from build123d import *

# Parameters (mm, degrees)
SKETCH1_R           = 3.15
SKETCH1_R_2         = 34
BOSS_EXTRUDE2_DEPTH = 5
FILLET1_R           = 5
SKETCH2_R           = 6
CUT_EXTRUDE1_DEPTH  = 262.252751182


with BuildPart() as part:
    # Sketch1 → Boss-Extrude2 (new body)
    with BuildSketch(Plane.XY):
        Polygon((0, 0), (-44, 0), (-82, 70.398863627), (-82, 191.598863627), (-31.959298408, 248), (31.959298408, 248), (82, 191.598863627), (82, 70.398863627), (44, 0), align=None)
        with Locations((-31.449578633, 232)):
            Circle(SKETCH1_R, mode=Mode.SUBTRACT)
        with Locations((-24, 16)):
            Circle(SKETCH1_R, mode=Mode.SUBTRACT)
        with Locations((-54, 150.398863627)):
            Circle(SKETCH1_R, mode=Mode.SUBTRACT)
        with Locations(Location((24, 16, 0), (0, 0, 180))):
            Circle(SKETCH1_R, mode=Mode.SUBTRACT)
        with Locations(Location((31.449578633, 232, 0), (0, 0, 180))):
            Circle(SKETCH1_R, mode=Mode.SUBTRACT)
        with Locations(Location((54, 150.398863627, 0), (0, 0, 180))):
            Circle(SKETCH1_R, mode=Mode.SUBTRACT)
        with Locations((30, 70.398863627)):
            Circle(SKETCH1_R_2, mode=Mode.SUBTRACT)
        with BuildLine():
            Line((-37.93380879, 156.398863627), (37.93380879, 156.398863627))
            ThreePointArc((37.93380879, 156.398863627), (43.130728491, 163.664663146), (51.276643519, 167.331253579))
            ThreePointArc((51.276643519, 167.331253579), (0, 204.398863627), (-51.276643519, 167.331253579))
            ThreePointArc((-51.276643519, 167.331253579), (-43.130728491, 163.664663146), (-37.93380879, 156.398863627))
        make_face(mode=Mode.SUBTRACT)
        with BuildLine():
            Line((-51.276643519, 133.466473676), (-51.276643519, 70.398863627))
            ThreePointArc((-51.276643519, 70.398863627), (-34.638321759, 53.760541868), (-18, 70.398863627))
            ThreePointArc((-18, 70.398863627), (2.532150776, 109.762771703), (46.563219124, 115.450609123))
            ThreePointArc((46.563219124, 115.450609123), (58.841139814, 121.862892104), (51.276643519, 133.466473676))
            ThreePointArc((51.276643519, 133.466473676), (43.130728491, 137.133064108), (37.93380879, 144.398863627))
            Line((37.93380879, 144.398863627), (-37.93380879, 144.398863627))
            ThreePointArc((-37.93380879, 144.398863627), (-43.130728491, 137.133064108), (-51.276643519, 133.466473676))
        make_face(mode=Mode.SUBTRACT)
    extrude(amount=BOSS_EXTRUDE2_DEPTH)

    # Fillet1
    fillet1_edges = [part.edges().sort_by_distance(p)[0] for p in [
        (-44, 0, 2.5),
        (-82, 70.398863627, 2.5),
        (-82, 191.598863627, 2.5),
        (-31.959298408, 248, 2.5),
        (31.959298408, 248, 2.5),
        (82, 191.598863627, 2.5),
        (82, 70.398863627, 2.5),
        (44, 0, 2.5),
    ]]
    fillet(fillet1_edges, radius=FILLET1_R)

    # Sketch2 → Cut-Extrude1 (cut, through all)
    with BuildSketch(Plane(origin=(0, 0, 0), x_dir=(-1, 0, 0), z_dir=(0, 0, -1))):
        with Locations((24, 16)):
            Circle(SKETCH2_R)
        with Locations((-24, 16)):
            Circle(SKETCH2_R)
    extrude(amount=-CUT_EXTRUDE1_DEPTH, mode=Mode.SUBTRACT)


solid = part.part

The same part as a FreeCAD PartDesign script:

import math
import FreeCAD as App
import Part
import Sketcher

V = App.Vector
Q = App.Units.Quantity


def edges_at(feature, points):
    """Names of the edges that pass closest to the given points."""
    edges = feature.Shape.Edges
    near = lambda p: min(range(len(edges)), key=lambda i: edges[i].distToShape(Part.Vertex(*p))[0])
    return sorted({f"Edge{near(p) + 1}" for p in points})

doc = App.newDocument("Part")
params = doc.addObject("Spreadsheet::Sheet", "Params")
for row, (alias, value) in enumerate([
    ("sketch1_diameter", "68 mm"),
    ("sketch1_radius", "48 mm"),
    ("sketch1_radius2", "54 mm"),
    ("sketch1_diameter2", "6.3 mm"),
    ("sketch1_width", "88 mm"),
    ("pad1_length", "5 mm"),
    ("fillet_radius", "5 mm"),
    ("sketch2_diameter", "12 mm"),
], start=1):
    params.set(f"A{row}", alias)
    params.set(f"B{row}", "=" + value)
    params.setAlias(f"B{row}", alias)

body = doc.addObject("PartDesign::Body", "Body")

sketch1 = body.newObject("Sketcher::SketchObject", "Sketch")
sketch1.AttachmentSupport = (doc.getObject("XY_Plane"), [""])
sketch1.MapMode = "FlatFace"
sketch1.addGeometry([
    Part.LineSegment(V(-44, 0, 0), V(44, 0, 0)),
    Part.LineSegment(V(44, 0, 0), V(82, 70.4, 0)),
    Part.LineSegment(V(82, 70.4, 0), V(82, 191.6, 0)),
    Part.LineSegment(V(82, 191.6, 0), V(32, 248, 0)),
    Part.LineSegment(V(32, 248, 0), V(-32, 248, 0)),
    Part.LineSegment(V(-32, 248, 0), V(-82, 191.6, 0)),
    Part.LineSegment(V(-82, 191.6, 0), V(-82, 70.4, 0)),
    Part.LineSegment(V(-82, 70.4, 0), V(-44, 0, 0)),
    Part.Circle(V(24, 16, 0), V(0, 0, 1), 3.1),
    Part.Circle(V(30, 70.4, 0), V(0, 0, 1), 34),
    Part.ArcOfCircle(Part.Circle(V(-54, 150.4, 0), V(0, 0, 1), 17.1), math.radians(-81), math.radians(-20)),
    Part.LineSegment(V(-37.9, 144.4, 0), V(37.9, 144.4, 0)),
    Part.ArcOfCircle(Part.Circle(V(54, 150.4, 0), V(0, 0, 1), 17.1), math.radians(-160), math.radians(-99)),
    Part.ArcOfCircle(Part.Circle(V(49.8, 124.2, 0), V(0, 0, 1), 9.4), math.radians(-110), math.radians(81)),
    Part.ArcOfCircle(Part.Circle(V(30, 70.4, 0), V(0, 0, 1), 48), math.radians(70), math.radians(180)),
    Part.ArcOfCircle(Part.Circle(V(-34.6, 70.4, 0), V(0, 0, 1), 16.6), math.radians(180), math.radians(360)),
    Part.LineSegment(V(-51.3, 70.4, 0), V(-51.3, 133.5, 0)),
    Part.Circle(V(-24, 16, 0), V(0, 0, 1), 3.1),
    Part.Circle(V(54, 150.4, 0), V(0, 0, 1), 3.1),
    Part.Circle(V(31.4, 232, 0), V(0, 0, 1), 3.1),
    Part.Circle(V(-54, 150.4, 0), V(0, 0, 1), 3.1),
    Part.ArcOfCircle(Part.Circle(V(-54, 150.4, 0), V(0, 0, 1), 17.1), math.radians(20), math.radians(81)),
    Part.ArcOfCircle(Part.Circle(V(0, 150.4, 0), V(0, 0, 1), 54), math.radians(18), math.radians(162)),
    Part.ArcOfCircle(Part.Circle(V(54, 150.4, 0), V(0, 0, 1), 17.1), math.radians(99), math.radians(160)),
    Part.LineSegment(V(37.9, 156.4, 0), V(-37.9, 156.4, 0)),
    Part.Circle(V(-31.4, 232, 0), V(0, 0, 1), 3.1),
], False)
sketch1.addConstraint([
    Sketcher.Constraint("Coincident", 0, 2, 1, 1),
    Sketcher.Constraint("Coincident", 1, 2, 2, 1),
    Sketcher.Constraint("Coincident", 2, 2, 3, 1),
    Sketcher.Constraint("Coincident", 3, 2, 4, 1),
    Sketcher.Constraint("Coincident", 4, 2, 5, 1),
    Sketcher.Constraint("Coincident", 5, 2, 6, 1),
    Sketcher.Constraint("Coincident", 6, 2, 7, 1),
    Sketcher.Constraint("Coincident", 7, 2, 0, 1),
    Sketcher.Constraint("Coincident", 10, 2, 11, 1),
    Sketcher.Constraint("Coincident", 11, 2, 12, 1),
    Sketcher.Constraint("Tangent", 12, 2, 13, 2),
    Sketcher.Constraint("Tangent", 13, 1, 14, 1),
    Sketcher.Constraint("Tangent", 14, 2, 15, 2),
    Sketcher.Constraint("Tangent", 15, 1, 16, 1),
    Sketcher.Constraint("Coincident", 16, 2, 10, 1),
    Sketcher.Constraint("Coincident", 21, 2, 22, 2),
    Sketcher.Constraint("Coincident", 22, 1, 23, 1),
    Sketcher.Constraint("Coincident", 23, 2, 24, 1),
    Sketcher.Constraint("Coincident", 24, 2, 21, 1),
    Sketcher.Constraint("Horizontal", 0),
    Sketcher.Constraint("Vertical", 2),
    Sketcher.Constraint("Horizontal", 4),
    Sketcher.Constraint("Vertical", 6),
    Sketcher.Constraint("Horizontal", 11),
    Sketcher.Constraint("Vertical", 16),
    Sketcher.Constraint("Horizontal", 24),
    Sketcher.Constraint("Coincident", 14, 3, 9, 3),
    Sketcher.Constraint("Coincident", 18, 3, 12, 3),
    Sketcher.Constraint("Coincident", 20, 3, 10, 3),
    Sketcher.Constraint("Coincident", 21, 3, 10, 3),
    Sketcher.Constraint("Coincident", 23, 3, 12, 3),
    Sketcher.Constraint("Equal", 10, 12),
    Sketcher.Constraint("Equal", 8, 17),
    Sketcher.Constraint("Equal", 17, 18),
    Sketcher.Constraint("Equal", 18, 19),
    Sketcher.Constraint("Equal", 19, 20),
    Sketcher.Constraint("Equal", 12, 21),
    Sketcher.Constraint("Equal", 21, 23),
    Sketcher.Constraint("Equal", 20, 25),
    Sketcher.Constraint("Symmetric", 0, 2, 7, 2, -1, 1),
    Sketcher.Constraint("Symmetric", 10, 3, 12, 3, -2),
    Sketcher.Constraint("Symmetric", 8, 3, 17, 3, -2),
    Sketcher.Constraint("Symmetric", 19, 3, 25, 3, -2),
    Sketcher.Constraint("Symmetric", 2, 2, 5, 2, -2),
    Sketcher.Constraint("PointOnObject", 22, 3, -2),
    Sketcher.Constraint("Horizontal", 14, 3, 15, 3),
    Sketcher.Constraint("Horizontal", 21, 3, 22, 3),
    Sketcher.Constraint("Horizontal", 15, 3, 1, 2),
    Sketcher.Constraint("Horizontal", 1, 2, 6, 2),
    Sketcher.Constraint("Horizontal", 12, 2, 16, 2),
    Sketcher.Constraint("Vertical", 16, 2, 21, 2),
    Sketcher.Constraint("Vertical", 11, 2, 23, 2),
    Sketcher.Constraint("Equal", 3, 5),
    Sketcher.Constraint("Diameter", 9, Q("68 mm")),
    Sketcher.Constraint("Radius", 14, Q("48 mm")),
    Sketcher.Constraint("Radius", 22, Q("54 mm")),
    Sketcher.Constraint("Diameter", 8, Q("6.3 mm")),
    Sketcher.Constraint("DistanceX", 0, 1, 0, 2, Q("88 mm")),
    Sketcher.Constraint("Radius", 10, Q("17.15 mm")),
    Sketcher.Constraint("Distance", 1, Q("80 mm")),
    Sketcher.Constraint("DistanceY", 2, 1, 2, 2, Q("121.2 mm")),
    Sketcher.Constraint("DistanceX", -1, 1, 8, 3, Q("24 mm")),
    Sketcher.Constraint("DistanceY", -1, 1, 8, 3, Q("16 mm")),
    Sketcher.Constraint("DistanceX", -1, 1, 9, 3, Q("30 mm")),
    Sketcher.Constraint("DistanceX", 10, 3, -1, 1, Q("54 mm")),
    Sketcher.Constraint("DistanceY", -1, 1, 19, 3, Q("232 mm")),
    Sketcher.Constraint("DistanceX", -1, 1, 1, 2, Q("82 mm")),
    Sketcher.Constraint("DistanceY", -1, 1, 3, 2, Q("248 mm")),
    Sketcher.Constraint("DistanceY", 9, 3, 10, 3, Q("80 mm")),
    Sketcher.Constraint("DistanceY", 10, 2, 10, 3, Q("6 mm")),
    Sketcher.Constraint("Distance", 3, Q("75.4 mm")),
    Sketcher.Constraint("DistanceX", -1, 1, 19, 3, Q("31.449579 mm")),
])
sketch1.setExpression("Constraints[53]", "Params.sketch1_diameter")
sketch1.setExpression("Constraints[54]", "Params.sketch1_radius")
sketch1.setExpression("Constraints[55]", "Params.sketch1_radius2")
sketch1.setExpression("Constraints[56]", "Params.sketch1_diameter2")
sketch1.setExpression("Constraints[57]", "Params.sketch1_width")
pad1 = body.newObject("PartDesign::Pad", "Pad")
pad1.Profile = sketch1
pad1.setExpression("Length", "Params.pad1_length")
doc.recompute()

fillet = body.newObject("PartDesign::Fillet", "Fillet")
fillet.Base = (pad1, edges_at(pad1, [
    (-44, 0, 2.5),
    (-82, 70.399, 2.5),
    (-82, 191.599, 2.5),
    (-31.959, 248, 2.5),
    (31.959, 248, 2.5),
    (82, 191.599, 2.5),
    (82, 70.399, 2.5),
    (44, 0, 2.5),
]))
fillet.setExpression("Radius", "Params.fillet_radius")

sketch2 = body.newObject("Sketcher::SketchObject", "Sketch001")
sketch2.AttachmentSupport = (doc.getObject("XY_Plane"), [""])
sketch2.MapMode = "FlatFace"
sketch2.addGeometry([
    Part.Circle(V(-24, 16, 0), V(0, 0, 1), 6),
    Part.Circle(V(24, 16, 0), V(0, 0, 1), 6),
], False)
sketch2.addConstraint([
    Sketcher.Constraint("Equal", 0, 1),
    Sketcher.Constraint("Symmetric", 0, 3, 1, 3, -2),
    Sketcher.Constraint("Diameter", 0, Q("12 mm")),
    Sketcher.Constraint("DistanceX", 0, 3, -1, 1, Q("24 mm")),
    Sketcher.Constraint("DistanceY", -1, 1, 0, 3, Q("16 mm")),
])
sketch2.setExpression("Constraints[2]", "Params.sketch2_diameter")
pocket1 = body.newObject("PartDesign::Pocket", "Pocket")
pocket1.Profile = sketch2
pocket1.Type = "ThroughAll"
pocket1.Reversed = True

doc.recompute()
